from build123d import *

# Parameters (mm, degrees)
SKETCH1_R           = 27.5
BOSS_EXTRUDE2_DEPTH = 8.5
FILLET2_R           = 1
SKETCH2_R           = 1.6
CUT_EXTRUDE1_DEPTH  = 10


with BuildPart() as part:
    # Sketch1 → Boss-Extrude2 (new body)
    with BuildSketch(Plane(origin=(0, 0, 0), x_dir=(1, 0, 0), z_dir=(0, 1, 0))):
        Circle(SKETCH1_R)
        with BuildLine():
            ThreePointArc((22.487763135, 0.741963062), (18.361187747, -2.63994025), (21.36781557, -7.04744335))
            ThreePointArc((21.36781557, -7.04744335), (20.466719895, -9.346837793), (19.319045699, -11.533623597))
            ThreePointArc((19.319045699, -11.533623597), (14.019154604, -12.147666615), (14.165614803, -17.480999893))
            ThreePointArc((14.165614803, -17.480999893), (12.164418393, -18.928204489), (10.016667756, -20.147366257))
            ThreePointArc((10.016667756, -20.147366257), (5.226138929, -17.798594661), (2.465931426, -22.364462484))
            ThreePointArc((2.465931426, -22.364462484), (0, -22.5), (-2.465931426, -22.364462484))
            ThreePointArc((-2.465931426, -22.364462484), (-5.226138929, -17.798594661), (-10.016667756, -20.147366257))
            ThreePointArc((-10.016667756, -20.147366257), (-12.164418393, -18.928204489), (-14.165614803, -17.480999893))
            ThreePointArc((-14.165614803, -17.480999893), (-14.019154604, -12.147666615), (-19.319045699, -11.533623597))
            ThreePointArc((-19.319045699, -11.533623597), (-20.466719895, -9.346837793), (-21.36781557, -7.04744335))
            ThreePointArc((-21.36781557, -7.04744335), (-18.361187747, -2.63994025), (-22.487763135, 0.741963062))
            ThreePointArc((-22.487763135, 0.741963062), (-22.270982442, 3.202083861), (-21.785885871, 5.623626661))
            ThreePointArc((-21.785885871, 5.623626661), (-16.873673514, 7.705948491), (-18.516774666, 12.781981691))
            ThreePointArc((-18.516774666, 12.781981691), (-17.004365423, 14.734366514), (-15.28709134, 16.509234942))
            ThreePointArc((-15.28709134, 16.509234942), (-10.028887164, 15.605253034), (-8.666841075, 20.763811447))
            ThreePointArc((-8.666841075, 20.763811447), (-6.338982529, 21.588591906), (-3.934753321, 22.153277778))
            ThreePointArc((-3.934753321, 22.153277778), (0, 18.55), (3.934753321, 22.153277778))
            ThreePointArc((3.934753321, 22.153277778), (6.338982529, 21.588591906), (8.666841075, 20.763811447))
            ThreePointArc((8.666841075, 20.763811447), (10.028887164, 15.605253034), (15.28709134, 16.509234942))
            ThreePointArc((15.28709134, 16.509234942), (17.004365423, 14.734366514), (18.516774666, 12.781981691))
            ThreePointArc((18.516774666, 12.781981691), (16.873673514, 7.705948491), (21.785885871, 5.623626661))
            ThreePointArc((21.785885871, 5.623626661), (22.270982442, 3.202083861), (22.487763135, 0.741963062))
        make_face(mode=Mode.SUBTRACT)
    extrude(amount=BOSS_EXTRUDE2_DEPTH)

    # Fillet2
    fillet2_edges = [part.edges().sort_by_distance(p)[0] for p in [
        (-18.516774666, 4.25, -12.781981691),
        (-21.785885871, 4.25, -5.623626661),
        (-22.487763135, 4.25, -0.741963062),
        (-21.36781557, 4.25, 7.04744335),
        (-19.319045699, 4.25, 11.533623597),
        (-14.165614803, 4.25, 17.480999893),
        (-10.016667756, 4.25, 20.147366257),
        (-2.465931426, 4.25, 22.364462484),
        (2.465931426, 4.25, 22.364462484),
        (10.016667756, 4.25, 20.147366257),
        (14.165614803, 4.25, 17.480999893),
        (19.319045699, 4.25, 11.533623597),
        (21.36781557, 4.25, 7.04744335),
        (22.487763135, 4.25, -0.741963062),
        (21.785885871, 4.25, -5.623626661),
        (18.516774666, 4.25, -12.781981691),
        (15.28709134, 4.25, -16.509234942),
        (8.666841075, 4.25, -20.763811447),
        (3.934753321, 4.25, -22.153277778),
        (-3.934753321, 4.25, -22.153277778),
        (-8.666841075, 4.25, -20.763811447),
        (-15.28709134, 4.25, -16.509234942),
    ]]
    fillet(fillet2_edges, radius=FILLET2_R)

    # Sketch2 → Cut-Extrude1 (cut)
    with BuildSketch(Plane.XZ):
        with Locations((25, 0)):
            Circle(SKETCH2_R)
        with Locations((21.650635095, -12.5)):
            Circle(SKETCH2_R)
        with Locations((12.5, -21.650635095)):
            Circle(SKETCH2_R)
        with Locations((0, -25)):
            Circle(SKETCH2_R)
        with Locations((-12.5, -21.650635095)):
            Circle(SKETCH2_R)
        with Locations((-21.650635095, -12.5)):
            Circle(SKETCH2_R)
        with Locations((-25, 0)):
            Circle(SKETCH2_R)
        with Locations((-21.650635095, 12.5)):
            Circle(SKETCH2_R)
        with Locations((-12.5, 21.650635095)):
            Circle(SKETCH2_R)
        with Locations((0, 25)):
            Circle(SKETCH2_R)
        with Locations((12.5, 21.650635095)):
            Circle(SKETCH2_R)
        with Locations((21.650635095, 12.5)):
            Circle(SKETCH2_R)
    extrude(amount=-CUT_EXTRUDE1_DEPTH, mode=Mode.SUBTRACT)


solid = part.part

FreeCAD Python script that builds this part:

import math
import FreeCAD as App
import Part
import Sketcher
from FreeCAD import Vector
Q = App.Units.Quantity


def edges_at(feature, points):
    """Names of the edges that pass closest to the given points."""
    edges = feature.Shape.Edges
    near = lambda p: min(range(len(edges)), key=lambda i: edges[i].distToShape(Part.Vertex(*p))[0])
    return sorted({f"Edge{near(p) + 1}" for p in points})

doc = App.newDocument("Part")
body = doc.addObject("PartDesign::Body", "Body")

# Sketch on XZ plane
sketch1 = doc.addObject("Sketcher::SketchObject", "Sketch")
body.addObject(sketch1)
sketch1.AttachmentSupport = (doc.XZ_Plane, [""])
sketch1.MapMode = "FlatFace"
sketch1.addGeometry(Part.Circle(Vector(0, 0, 0), Vector(0, 0, 1), 27.5), False)
sketch1.addGeometry(Part.ArcOfCircle(Part.Circle(Vector(0, 0, 0), Vector(0, 0, 1), 22.5), math.radians(-14.4739), math.radians(-1.889736)), False)
sketch1.addGeometry(Part.ArcOfCircle(Part.Circle(Vector(22.270982, 3.202084, 0), Vector(0, 0, 1), 3.95), math.radians(103.217595), math.radians(273.146041)), False)
sketch1.addGeometry(Part.ArcOfCircle(Part.Circle(Vector(0, 0, 0), Vector(0, 0, 1), 22.5), math.radians(18.253372), math.radians(30.837537)), False)
sketch1.addGeometry(Part.ArcOfCircle(Part.Circle(Vector(17.004365, 14.734367, 0), Vector(0, 0, 1), 3.95), math.radians(135.944868), math.radians(305.873314)), False)
sketch1.addGeometry(Part.ArcOfCircle(Part.Circle(Vector(0, 0, 0), Vector(0, 0, 1), 22.5), math.radians(50.980645), math.radians(63.564809)), False)
sketch1.addGeometry(Part.ArcOfCircle(Part.Circle(Vector(6.338983, 21.588592, 0), Vector(0, 0, 1), 3.95), math.radians(168.672141), math.radians(338.600587)), False)
sketch1.addGeometry(Part.ArcOfCircle(Part.Circle(Vector(0, 0, 0), Vector(0, 0, 1), 22.5), math.radians(83.707918), math.radians(96.292082)), False)
sketch1.addGeometry(Part.ArcOfCircle(Part.Circle(Vector(-6.338983, 21.588592, 0), Vector(0, 0, 1), 3.95), math.radians(-158.600587), math.radians(11.327859)), False)
sketch1.addGeometry(Part.ArcOfCircle(Part.Circle(Vector(0, 0, 0), Vector(0, 0, 1), 22.5), math.radians(116.435191), math.radians(129.019355)), False)
sketch1.addGeometry(Part.ArcOfCircle(Part.Circle(Vector(-17.004365, 14.734367, 0), Vector(0, 0, 1), 3.95), math.radians(-125.873314), math.radians(44.055132)), False)
sketch1.addGeometry(Part.ArcOfCircle(Part.Circle(Vector(0, 0, 0), Vector(0, 0, 1), 22.5), math.radians(149.162463), math.radians(161.746628)), False)
sketch1.addGeometry(Part.ArcOfCircle(Part.Circle(Vector(-22.270982, 3.202084, 0), Vector(0, 0, 1), 3.95), math.radians(-93.146041), math.radians(76.782405)), False)
sketch1.addGeometry(Part.ArcOfCircle(Part.Circle(Vector(0, 0, 0), Vector(0, 0, 1), 22.5), math.radians(-178.110264), math.radians(-165.5261)), False)
sketch1.addGeometry(Part.ArcOfCircle(Part.Circle(Vector(-20.46672, -9.346838, 0), Vector(0, 0, 1), 3.95), math.radians(-60.418768), math.radians(109.509677)), False)
sketch1.addGeometry(Part.ArcOfCircle(Part.Circle(Vector(0, 0, 0), Vector(0, 0, 1), 22.5), math.radians(-145.382991), math.radians(-132.798827)), False)
sketch1.addGeometry(Part.ArcOfCircle(Part.Circle(Vector(-12.164418, -18.928204, 0), Vector(0, 0, 1), 3.95), math.radians(-27.691496), math.radians(142.23695)), False)
sketch1.addGeometry(Part.ArcOfCircle(Part.Circle(Vector(0, 0, 0), Vector(0, 0, 1), 22.5), math.radians(-112.655718), math.radians(-100.071554)), False)
sketch1.addGeometry(Part.ArcOfCircle(Part.Circle(Vector(0, -22.5, 0), Vector(0, 0, 1), 3.95), math.radians(5.035777), math.radians(174.964223)), False)
sketch1.addGeometry(Part.ArcOfCircle(Part.Circle(Vector(0, 0, 0), Vector(0, 0, 1), 22.5), math.radians(-79.928446), math.radians(-67.344282)), False)
sketch1.addGeometry(Part.ArcOfCircle(Part.Circle(Vector(12.164418, -18.928204, 0), Vector(0, 0, 1), 3.95), math.radians(37.76305), math.radians(207.691496)), False)
sketch1.addGeometry(Part.ArcOfCircle(Part.Circle(Vector(0, 0, 0), Vector(0, 0, 1), 22.5), math.radians(-47.201173), math.radians(-34.617009)), False)
sketch1.addGeometry(Part.ArcOfCircle(Part.Circle(Vector(20.46672, -9.346838, 0), Vector(0, 0, 1), 3.95), math.radians(70.490323), math.radians(240.418768)), False)
sketch1.addConstraint(Sketcher.Constraint("Coincident", 1, 2, 2, 2))
sketch1.addConstraint(Sketcher.Constraint("Coincident", 2, 1, 3, 1))
sketch1.addConstraint(Sketcher.Constraint("Coincident", 3, 2, 4, 2))
sketch1.addConstraint(Sketcher.Constraint("Coincident", 4, 1, 5, 1))
sketch1.addConstraint(Sketcher.Constraint("Coincident", 5, 2, 6, 2))
sketch1.addConstraint(Sketcher.Constraint("Coincident", 6, 1, 7, 1))
sketch1.addConstraint(Sketcher.Constraint("Coincident", 7, 2, 8, 2))
sketch1.addConstraint(Sketcher.Constraint("Coincident", 8, 1, 9, 1))
sketch1.addConstraint(Sketcher.Constraint("Coincident", 9, 2, 10, 2))
sketch1.addConstraint(Sketcher.Constraint("Coincident", 10, 1, 11, 1))
sketch1.addConstraint(Sketcher.Constraint("Coincident", 11, 2, 12, 2))
sketch1.addConstraint(Sketcher.Constraint("Coincident", 12, 1, 13, 1))
sketch1.addConstraint(Sketcher.Constraint("Coincident", 13, 2, 14, 2))
sketch1.addConstraint(Sketcher.Constraint("Coincident", 14, 1, 15, 1))
sketch1.addConstraint(Sketcher.Constraint("Coincident", 15, 2, 16, 2))
sketch1.addConstraint(Sketcher.Constraint("Coincident", 16, 1, 17, 1))
sketch1.addConstraint(Sketcher.Constraint("Coincident", 17, 2, 18, 2))
sketch1.addConstraint(Sketcher.Constraint("Coincident", 18, 1, 19, 1))
sketch1.addConstraint(Sketcher.Constraint("Coincident", 19, 2, 20, 2))
sketch1.addConstraint(Sketcher.Constraint("Coincident", 20, 1, 21, 1))
sketch1.addConstraint(Sketcher.Constraint("Coincident", 21, 2, 22, 2))
sketch1.addConstraint(Sketcher.Constraint("Coincident", 22, 1, 1, 1))
sketch1.addConstraint(Sketcher.Constraint("Coincident", 0, 3, -1, 1))
sketch1.addConstraint(Sketcher.Constraint("Coincident", 1, 3, -1, 1))
sketch1.addConstraint(Sketcher.Constraint("Coincident", 3, 3, -1, 1))
sketch1.addConstraint(Sketcher.Constraint("Coincident", 5, 3, -1, 1))
sketch1.addConstraint(Sketcher.Constraint("Coincident", 7, 3, -1, 1))
sketch1.addConstraint(Sketcher.Constraint("Coincident", 9, 3, -1, 1))
sketch1.addConstraint(Sketcher.Constraint("Coincident", 11, 3, -1, 1))
sketch1.addConstraint(Sketcher.Constraint("Coincident", 13, 3, -1, 1))
sketch1.addConstraint(Sketcher.Constraint("Coincident", 15, 3, -1, 1))
sketch1.addConstraint(Sketcher.Constraint("Coincident", 17, 3, -1, 1))
sketch1.addConstraint(Sketcher.Constraint("Coincident", 19, 3, -1, 1))
sketch1.addConstraint(Sketcher.Constraint("Coincident", 21, 3, -1, 1))
sketch1.addConstraint(Sketcher.Constraint("Equal", 1, 3))
sketch1.addConstraint(Sketcher.Constraint("Equal", 2, 4))
sketch1.addConstraint(Sketcher.Constraint("Equal", 3, 5))
sketch1.addConstraint(Sketcher.Constraint("Equal", 4, 6))
sketch1.addConstraint(Sketcher.Constraint("Equal", 5, 7))
sketch1.addConstraint(Sketcher.Constraint("Equal", 6, 8))
sketch1.addConstraint(Sketcher.Constraint("Equal", 7, 9))
sketch1.addConstraint(Sketcher.Constraint("Equal", 8, 10))
sketch1.addConstraint(Sketcher.Constraint("Equal", 9, 11))
sketch1.addConstraint(Sketcher.Constraint("Equal", 10, 12))
sketch1.addConstraint(Sketcher.Constraint("Equal", 11, 13))
sketch1.addConstraint(Sketcher.Constraint("Equal", 12, 14))
sketch1.addConstraint(Sketcher.Constraint("Equal", 13, 15))
sketch1.addConstraint(Sketcher.Constraint("Equal", 14, 16))
sketch1.addConstraint(Sketcher.Constraint("Equal", 15, 17))
sketch1.addConstraint(Sketcher.Constraint("Equal", 16, 18))
sketch1.addConstraint(Sketcher.Constraint("Equal", 17, 19))
sketch1.addConstraint(Sketcher.Constraint("Equal", 18, 20))
sketch1.addConstraint(Sketcher.Constraint("Equal", 19, 21))
sketch1.addConstraint(Sketcher.Constraint("Equal", 20, 22))
sketch1.addConstraint(Sketcher.Constraint("Symmetric", 6, 3, 8, 3, -2))
sketch1.addConstraint(Sketcher.Constraint("Symmetric", 4, 3, 10, 3, -2))
sketch1.addConstraint(Sketcher.Constraint("Symmetric", 2, 3, 12, 3, -2))
sketch1.addConstraint(Sketcher.Constraint("Symmetric", 16, 3, 20, 3, -2))
sketch1.addConstraint(Sketcher.Constraint("Symmetric", 14, 3, 22, 3, -2))
sketch1.addConstraint(Sketcher.Constraint("PointOnObject", 18, 3, -2))
sketch1.addConstraint(Sketcher.Constraint("Diameter", 0, Q("55 mm")))
sketch1.addConstraint(Sketcher.Constraint("Radius", 1, Q("22.5 mm")))
sketch1.addConstraint(Sketcher.Constraint("Radius", 2, Q("3.95 mm")))
sketch1.addConstraint(Sketcher.Constraint("DistanceY", 18, 3, -1, 1, Q("22.5 mm")))
sketch1.addConstraint(Sketcher.Constraint("DistanceY", -1, 1, 4, 1, Q("17.481 mm")))
sketch1.addConstraint(Sketcher.Constraint("DistanceY", 4, 3, 5, 2, Q("5.413 mm")))
sketch1.addConstraint(Sketcher.Constraint("DistanceX", 14, 3, 16, 3, Q("8.302302 mm")))
sketch1.addConstraint(Sketcher.Constraint("DistanceX", 4, 1, 2, 1, Q("7.202201 mm")))
sketch1.addConstraint(Sketcher.Constraint("DistanceX", 7, 2, 5, 2, Q("12.482599 mm")))
sketch1.addConstraint(Sketcher.Constraint("DistanceY", -1, 1, 6, 3, Q("21.588592 mm")))
sketch1.addConstraint(Sketcher.Constraint("DistanceX", 14, 3, -1, 1, Q("20.46672 mm")))
sketch1.addConstraint(Sketcher.Constraint("DistanceY", 14, 1, -1, 1, Q("12.781982 mm")))
sketch1.addConstraint(Sketcher.Constraint("DistanceX", 15, 2, -1, 1, Q("15.287091 mm")))
sketch1.addConstraint(Sketcher.Constraint("DistanceY", 14, 3, 12, 3, Q("12.548922 mm")))
pad1 = doc.addObject("PartDesign::Pad", "Pad")
body.addObject(pad1)
pad1.Profile = sketch1
pad1.Length = 8.5
pad1.Reversed = True
doc.recompute()

fillet = doc.addObject("PartDesign::Fillet", "Fillet")
body.addObject(fillet)
fillet.Base = (pad1, edges_at(pad1, [
    (-18.517, 4.25, -12.782),
    (-21.786, 4.25, -5.624),
    (-22.488, 4.25, -0.742),
    (-21.368, 4.25, 7.047),
    (-19.319, 4.25, 11.534),
    (-14.166, 4.25, 17.481),
    (-10.017, 4.25, 20.147),
    (-2.466, 4.25, 22.364),
    (2.466, 4.25, 22.364),
    (10.017, 4.25, 20.147),
    (14.166, 4.25, 17.481),
    (19.319, 4.25, 11.534),
    (21.368, 4.25, 7.047),
    (22.488, 4.25, -0.742),
    (21.786, 4.25, -5.624),
    (18.517, 4.25, -12.782),
    (15.287, 4.25, -16.509),
    (8.667, 4.25, -20.764),
    (3.935, 4.25, -22.153),
    (-3.935, 4.25, -22.153),
    (-8.667, 4.25, -20.764),
    (-15.287, 4.25, -16.509),
]))
fillet.Radius = 1

# Sketch on XZ plane
sketch2 = doc.addObject("Sketcher::SketchObject", "Sketch001")
body.addObject(sketch2)
sketch2.AttachmentSupport = (doc.XZ_Plane, [""])
sketch2.MapMode = "FlatFace"
sketch2.addGeometry(Part.Circle(Vector(25, 0, 0), Vector(0, 0, 1), 1.6), False)
sketch2.addGeometry(Part.Circle(Vector(21.650635, -12.5, 0), Vector(0, 0, 1), 1.6), False)
sketch2.addGeometry(Part.Circle(Vector(12.5, -21.650635, 0), Vector(0, 0, 1), 1.6), False)
sketch2.addGeometry(Part.Circle(Vector(0, -25, 0), Vector(0, 0, 1), 1.6), False)
sketch2.addGeometry(Part.Circle(Vector(-12.5, -21.650635, 0), Vector(0, 0, 1), 1.6), False)
sketch2.addGeometry(Part.Circle(Vector(-21.650635, -12.5, 0), Vector(0, 0, 1), 1.6), False)
sketch2.addGeometry(Part.Circle(Vector(-25, 0, 0), Vector(0, 0, 1), 1.6), False)
sketch2.addGeometry(Part.Circle(Vector(-21.650635, 12.5, 0), Vector(0, 0, 1), 1.6), False)
sketch2.addGeometry(Part.Circle(Vector(-12.5, 21.650635, 0), Vector(0, 0, 1), 1.6), False)
sketch2.addGeometry(Part.Circle(Vector(0, 25, 0), Vector(0, 0, 1), 1.6), False)
sketch2.addGeometry(Part.Circle(Vector(12.5, 21.650635, 0), Vector(0, 0, 1), 1.6), False)
sketch2.addGeometry(Part.Circle(Vector(21.650635, 12.5, 0), Vector(0, 0, 1), 1.6), False)
sketch2.addConstraint(Sketcher.Constraint("Equal", 0, 1))
sketch2.addConstraint(Sketcher.Constraint("Equal", 1, 2))
sketch2.addConstraint(Sketcher.Constraint("Equal", 2, 3))
sketch2.addConstraint(Sketcher.Constraint("Equal", 3, 4))
sketch2.addConstraint(Sketcher.Constraint("Equal", 4, 5))
sketch2.addConstraint(Sketcher.Constraint("Equal", 5, 6))
sketch2.addConstraint(Sketcher.Constraint("Equal", 6, 7))
sketch2.addConstraint(Sketcher.Constraint("Equal", 7, 8))
sketch2.addConstraint(Sketcher.Constraint("Equal", 8, 9))
sketch2.addConstraint(Sketcher.Constraint("Equal", 9, 10))
sketch2.addConstraint(Sketcher.Constraint("Equal", 10, 11))
sketch2.addConstraint(Sketcher.Constraint("Symmetric", 0, 3, 6, 3, -1, 1))
sketch2.addConstraint(Sketcher.Constraint("Symmetric", 1, 3, 7, 3, -1, 1))
sketch2.addConstraint(Sketcher.Constraint("Symmetric", 2, 3, 8, 3, -1, 1))
sketch2.addConstraint(Sketcher.Constraint("Symmetric", 3, 3, 9, 3, -1, 1))
sketch2.addConstraint(Sketcher.Constraint("Symmetric", 4, 3, 10, 3, -1, 1))
sketch2.addConstraint(Sketcher.Constraint("Symmetric", 5, 3, 11, 3, -1, 1))
sketch2.addConstraint(Sketcher.Constraint("Symmetric", 2, 3, 4, 3, -2))
sketch2.addConstraint(Sketcher.Constraint("Symmetric", 1, 3, 5, 3, -2))
sketch2.addConstraint(Sketcher.Constraint("PointOnObject", 0, 3, -1))
sketch2.addConstraint(Sketcher.Constraint("PointOnObject", 3, 3, -2))
sketch2.addConstraint(Sketcher.Constraint("Diameter", 0, Q("3.2 mm")))
sketch2.addConstraint(Sketcher.Constraint("DistanceX", -1, 1, 0, 3, Q("25 mm")))
sketch2.addConstraint(Sketcher.Constraint("DistanceY", 3, 3, -1, 1, Q("25 mm")))
sketch2.addConstraint(Sketcher.Constraint("DistanceX", 4, 3, 2, 3, Q("25 mm")))
sketch2.addConstraint(Sketcher.Constraint("DistanceY", 5, 3, 7, 3, Q("25 mm")))
sketch2.addConstraint(Sketcher.Constraint("DistanceX", 5, 3, 1, 3, Q("43.30127 mm")))
sketch2.addConstraint(Sketcher.Constraint("DistanceY", 4, 3, 8, 3, Q("43.30127 mm")))
pocket1 = doc.addObject("PartDesign::Pocket", "Pocket")
body.addObject(pocket1)
pocket1.Profile = sketch2
pocket1.Length = 10

doc.recompute()
